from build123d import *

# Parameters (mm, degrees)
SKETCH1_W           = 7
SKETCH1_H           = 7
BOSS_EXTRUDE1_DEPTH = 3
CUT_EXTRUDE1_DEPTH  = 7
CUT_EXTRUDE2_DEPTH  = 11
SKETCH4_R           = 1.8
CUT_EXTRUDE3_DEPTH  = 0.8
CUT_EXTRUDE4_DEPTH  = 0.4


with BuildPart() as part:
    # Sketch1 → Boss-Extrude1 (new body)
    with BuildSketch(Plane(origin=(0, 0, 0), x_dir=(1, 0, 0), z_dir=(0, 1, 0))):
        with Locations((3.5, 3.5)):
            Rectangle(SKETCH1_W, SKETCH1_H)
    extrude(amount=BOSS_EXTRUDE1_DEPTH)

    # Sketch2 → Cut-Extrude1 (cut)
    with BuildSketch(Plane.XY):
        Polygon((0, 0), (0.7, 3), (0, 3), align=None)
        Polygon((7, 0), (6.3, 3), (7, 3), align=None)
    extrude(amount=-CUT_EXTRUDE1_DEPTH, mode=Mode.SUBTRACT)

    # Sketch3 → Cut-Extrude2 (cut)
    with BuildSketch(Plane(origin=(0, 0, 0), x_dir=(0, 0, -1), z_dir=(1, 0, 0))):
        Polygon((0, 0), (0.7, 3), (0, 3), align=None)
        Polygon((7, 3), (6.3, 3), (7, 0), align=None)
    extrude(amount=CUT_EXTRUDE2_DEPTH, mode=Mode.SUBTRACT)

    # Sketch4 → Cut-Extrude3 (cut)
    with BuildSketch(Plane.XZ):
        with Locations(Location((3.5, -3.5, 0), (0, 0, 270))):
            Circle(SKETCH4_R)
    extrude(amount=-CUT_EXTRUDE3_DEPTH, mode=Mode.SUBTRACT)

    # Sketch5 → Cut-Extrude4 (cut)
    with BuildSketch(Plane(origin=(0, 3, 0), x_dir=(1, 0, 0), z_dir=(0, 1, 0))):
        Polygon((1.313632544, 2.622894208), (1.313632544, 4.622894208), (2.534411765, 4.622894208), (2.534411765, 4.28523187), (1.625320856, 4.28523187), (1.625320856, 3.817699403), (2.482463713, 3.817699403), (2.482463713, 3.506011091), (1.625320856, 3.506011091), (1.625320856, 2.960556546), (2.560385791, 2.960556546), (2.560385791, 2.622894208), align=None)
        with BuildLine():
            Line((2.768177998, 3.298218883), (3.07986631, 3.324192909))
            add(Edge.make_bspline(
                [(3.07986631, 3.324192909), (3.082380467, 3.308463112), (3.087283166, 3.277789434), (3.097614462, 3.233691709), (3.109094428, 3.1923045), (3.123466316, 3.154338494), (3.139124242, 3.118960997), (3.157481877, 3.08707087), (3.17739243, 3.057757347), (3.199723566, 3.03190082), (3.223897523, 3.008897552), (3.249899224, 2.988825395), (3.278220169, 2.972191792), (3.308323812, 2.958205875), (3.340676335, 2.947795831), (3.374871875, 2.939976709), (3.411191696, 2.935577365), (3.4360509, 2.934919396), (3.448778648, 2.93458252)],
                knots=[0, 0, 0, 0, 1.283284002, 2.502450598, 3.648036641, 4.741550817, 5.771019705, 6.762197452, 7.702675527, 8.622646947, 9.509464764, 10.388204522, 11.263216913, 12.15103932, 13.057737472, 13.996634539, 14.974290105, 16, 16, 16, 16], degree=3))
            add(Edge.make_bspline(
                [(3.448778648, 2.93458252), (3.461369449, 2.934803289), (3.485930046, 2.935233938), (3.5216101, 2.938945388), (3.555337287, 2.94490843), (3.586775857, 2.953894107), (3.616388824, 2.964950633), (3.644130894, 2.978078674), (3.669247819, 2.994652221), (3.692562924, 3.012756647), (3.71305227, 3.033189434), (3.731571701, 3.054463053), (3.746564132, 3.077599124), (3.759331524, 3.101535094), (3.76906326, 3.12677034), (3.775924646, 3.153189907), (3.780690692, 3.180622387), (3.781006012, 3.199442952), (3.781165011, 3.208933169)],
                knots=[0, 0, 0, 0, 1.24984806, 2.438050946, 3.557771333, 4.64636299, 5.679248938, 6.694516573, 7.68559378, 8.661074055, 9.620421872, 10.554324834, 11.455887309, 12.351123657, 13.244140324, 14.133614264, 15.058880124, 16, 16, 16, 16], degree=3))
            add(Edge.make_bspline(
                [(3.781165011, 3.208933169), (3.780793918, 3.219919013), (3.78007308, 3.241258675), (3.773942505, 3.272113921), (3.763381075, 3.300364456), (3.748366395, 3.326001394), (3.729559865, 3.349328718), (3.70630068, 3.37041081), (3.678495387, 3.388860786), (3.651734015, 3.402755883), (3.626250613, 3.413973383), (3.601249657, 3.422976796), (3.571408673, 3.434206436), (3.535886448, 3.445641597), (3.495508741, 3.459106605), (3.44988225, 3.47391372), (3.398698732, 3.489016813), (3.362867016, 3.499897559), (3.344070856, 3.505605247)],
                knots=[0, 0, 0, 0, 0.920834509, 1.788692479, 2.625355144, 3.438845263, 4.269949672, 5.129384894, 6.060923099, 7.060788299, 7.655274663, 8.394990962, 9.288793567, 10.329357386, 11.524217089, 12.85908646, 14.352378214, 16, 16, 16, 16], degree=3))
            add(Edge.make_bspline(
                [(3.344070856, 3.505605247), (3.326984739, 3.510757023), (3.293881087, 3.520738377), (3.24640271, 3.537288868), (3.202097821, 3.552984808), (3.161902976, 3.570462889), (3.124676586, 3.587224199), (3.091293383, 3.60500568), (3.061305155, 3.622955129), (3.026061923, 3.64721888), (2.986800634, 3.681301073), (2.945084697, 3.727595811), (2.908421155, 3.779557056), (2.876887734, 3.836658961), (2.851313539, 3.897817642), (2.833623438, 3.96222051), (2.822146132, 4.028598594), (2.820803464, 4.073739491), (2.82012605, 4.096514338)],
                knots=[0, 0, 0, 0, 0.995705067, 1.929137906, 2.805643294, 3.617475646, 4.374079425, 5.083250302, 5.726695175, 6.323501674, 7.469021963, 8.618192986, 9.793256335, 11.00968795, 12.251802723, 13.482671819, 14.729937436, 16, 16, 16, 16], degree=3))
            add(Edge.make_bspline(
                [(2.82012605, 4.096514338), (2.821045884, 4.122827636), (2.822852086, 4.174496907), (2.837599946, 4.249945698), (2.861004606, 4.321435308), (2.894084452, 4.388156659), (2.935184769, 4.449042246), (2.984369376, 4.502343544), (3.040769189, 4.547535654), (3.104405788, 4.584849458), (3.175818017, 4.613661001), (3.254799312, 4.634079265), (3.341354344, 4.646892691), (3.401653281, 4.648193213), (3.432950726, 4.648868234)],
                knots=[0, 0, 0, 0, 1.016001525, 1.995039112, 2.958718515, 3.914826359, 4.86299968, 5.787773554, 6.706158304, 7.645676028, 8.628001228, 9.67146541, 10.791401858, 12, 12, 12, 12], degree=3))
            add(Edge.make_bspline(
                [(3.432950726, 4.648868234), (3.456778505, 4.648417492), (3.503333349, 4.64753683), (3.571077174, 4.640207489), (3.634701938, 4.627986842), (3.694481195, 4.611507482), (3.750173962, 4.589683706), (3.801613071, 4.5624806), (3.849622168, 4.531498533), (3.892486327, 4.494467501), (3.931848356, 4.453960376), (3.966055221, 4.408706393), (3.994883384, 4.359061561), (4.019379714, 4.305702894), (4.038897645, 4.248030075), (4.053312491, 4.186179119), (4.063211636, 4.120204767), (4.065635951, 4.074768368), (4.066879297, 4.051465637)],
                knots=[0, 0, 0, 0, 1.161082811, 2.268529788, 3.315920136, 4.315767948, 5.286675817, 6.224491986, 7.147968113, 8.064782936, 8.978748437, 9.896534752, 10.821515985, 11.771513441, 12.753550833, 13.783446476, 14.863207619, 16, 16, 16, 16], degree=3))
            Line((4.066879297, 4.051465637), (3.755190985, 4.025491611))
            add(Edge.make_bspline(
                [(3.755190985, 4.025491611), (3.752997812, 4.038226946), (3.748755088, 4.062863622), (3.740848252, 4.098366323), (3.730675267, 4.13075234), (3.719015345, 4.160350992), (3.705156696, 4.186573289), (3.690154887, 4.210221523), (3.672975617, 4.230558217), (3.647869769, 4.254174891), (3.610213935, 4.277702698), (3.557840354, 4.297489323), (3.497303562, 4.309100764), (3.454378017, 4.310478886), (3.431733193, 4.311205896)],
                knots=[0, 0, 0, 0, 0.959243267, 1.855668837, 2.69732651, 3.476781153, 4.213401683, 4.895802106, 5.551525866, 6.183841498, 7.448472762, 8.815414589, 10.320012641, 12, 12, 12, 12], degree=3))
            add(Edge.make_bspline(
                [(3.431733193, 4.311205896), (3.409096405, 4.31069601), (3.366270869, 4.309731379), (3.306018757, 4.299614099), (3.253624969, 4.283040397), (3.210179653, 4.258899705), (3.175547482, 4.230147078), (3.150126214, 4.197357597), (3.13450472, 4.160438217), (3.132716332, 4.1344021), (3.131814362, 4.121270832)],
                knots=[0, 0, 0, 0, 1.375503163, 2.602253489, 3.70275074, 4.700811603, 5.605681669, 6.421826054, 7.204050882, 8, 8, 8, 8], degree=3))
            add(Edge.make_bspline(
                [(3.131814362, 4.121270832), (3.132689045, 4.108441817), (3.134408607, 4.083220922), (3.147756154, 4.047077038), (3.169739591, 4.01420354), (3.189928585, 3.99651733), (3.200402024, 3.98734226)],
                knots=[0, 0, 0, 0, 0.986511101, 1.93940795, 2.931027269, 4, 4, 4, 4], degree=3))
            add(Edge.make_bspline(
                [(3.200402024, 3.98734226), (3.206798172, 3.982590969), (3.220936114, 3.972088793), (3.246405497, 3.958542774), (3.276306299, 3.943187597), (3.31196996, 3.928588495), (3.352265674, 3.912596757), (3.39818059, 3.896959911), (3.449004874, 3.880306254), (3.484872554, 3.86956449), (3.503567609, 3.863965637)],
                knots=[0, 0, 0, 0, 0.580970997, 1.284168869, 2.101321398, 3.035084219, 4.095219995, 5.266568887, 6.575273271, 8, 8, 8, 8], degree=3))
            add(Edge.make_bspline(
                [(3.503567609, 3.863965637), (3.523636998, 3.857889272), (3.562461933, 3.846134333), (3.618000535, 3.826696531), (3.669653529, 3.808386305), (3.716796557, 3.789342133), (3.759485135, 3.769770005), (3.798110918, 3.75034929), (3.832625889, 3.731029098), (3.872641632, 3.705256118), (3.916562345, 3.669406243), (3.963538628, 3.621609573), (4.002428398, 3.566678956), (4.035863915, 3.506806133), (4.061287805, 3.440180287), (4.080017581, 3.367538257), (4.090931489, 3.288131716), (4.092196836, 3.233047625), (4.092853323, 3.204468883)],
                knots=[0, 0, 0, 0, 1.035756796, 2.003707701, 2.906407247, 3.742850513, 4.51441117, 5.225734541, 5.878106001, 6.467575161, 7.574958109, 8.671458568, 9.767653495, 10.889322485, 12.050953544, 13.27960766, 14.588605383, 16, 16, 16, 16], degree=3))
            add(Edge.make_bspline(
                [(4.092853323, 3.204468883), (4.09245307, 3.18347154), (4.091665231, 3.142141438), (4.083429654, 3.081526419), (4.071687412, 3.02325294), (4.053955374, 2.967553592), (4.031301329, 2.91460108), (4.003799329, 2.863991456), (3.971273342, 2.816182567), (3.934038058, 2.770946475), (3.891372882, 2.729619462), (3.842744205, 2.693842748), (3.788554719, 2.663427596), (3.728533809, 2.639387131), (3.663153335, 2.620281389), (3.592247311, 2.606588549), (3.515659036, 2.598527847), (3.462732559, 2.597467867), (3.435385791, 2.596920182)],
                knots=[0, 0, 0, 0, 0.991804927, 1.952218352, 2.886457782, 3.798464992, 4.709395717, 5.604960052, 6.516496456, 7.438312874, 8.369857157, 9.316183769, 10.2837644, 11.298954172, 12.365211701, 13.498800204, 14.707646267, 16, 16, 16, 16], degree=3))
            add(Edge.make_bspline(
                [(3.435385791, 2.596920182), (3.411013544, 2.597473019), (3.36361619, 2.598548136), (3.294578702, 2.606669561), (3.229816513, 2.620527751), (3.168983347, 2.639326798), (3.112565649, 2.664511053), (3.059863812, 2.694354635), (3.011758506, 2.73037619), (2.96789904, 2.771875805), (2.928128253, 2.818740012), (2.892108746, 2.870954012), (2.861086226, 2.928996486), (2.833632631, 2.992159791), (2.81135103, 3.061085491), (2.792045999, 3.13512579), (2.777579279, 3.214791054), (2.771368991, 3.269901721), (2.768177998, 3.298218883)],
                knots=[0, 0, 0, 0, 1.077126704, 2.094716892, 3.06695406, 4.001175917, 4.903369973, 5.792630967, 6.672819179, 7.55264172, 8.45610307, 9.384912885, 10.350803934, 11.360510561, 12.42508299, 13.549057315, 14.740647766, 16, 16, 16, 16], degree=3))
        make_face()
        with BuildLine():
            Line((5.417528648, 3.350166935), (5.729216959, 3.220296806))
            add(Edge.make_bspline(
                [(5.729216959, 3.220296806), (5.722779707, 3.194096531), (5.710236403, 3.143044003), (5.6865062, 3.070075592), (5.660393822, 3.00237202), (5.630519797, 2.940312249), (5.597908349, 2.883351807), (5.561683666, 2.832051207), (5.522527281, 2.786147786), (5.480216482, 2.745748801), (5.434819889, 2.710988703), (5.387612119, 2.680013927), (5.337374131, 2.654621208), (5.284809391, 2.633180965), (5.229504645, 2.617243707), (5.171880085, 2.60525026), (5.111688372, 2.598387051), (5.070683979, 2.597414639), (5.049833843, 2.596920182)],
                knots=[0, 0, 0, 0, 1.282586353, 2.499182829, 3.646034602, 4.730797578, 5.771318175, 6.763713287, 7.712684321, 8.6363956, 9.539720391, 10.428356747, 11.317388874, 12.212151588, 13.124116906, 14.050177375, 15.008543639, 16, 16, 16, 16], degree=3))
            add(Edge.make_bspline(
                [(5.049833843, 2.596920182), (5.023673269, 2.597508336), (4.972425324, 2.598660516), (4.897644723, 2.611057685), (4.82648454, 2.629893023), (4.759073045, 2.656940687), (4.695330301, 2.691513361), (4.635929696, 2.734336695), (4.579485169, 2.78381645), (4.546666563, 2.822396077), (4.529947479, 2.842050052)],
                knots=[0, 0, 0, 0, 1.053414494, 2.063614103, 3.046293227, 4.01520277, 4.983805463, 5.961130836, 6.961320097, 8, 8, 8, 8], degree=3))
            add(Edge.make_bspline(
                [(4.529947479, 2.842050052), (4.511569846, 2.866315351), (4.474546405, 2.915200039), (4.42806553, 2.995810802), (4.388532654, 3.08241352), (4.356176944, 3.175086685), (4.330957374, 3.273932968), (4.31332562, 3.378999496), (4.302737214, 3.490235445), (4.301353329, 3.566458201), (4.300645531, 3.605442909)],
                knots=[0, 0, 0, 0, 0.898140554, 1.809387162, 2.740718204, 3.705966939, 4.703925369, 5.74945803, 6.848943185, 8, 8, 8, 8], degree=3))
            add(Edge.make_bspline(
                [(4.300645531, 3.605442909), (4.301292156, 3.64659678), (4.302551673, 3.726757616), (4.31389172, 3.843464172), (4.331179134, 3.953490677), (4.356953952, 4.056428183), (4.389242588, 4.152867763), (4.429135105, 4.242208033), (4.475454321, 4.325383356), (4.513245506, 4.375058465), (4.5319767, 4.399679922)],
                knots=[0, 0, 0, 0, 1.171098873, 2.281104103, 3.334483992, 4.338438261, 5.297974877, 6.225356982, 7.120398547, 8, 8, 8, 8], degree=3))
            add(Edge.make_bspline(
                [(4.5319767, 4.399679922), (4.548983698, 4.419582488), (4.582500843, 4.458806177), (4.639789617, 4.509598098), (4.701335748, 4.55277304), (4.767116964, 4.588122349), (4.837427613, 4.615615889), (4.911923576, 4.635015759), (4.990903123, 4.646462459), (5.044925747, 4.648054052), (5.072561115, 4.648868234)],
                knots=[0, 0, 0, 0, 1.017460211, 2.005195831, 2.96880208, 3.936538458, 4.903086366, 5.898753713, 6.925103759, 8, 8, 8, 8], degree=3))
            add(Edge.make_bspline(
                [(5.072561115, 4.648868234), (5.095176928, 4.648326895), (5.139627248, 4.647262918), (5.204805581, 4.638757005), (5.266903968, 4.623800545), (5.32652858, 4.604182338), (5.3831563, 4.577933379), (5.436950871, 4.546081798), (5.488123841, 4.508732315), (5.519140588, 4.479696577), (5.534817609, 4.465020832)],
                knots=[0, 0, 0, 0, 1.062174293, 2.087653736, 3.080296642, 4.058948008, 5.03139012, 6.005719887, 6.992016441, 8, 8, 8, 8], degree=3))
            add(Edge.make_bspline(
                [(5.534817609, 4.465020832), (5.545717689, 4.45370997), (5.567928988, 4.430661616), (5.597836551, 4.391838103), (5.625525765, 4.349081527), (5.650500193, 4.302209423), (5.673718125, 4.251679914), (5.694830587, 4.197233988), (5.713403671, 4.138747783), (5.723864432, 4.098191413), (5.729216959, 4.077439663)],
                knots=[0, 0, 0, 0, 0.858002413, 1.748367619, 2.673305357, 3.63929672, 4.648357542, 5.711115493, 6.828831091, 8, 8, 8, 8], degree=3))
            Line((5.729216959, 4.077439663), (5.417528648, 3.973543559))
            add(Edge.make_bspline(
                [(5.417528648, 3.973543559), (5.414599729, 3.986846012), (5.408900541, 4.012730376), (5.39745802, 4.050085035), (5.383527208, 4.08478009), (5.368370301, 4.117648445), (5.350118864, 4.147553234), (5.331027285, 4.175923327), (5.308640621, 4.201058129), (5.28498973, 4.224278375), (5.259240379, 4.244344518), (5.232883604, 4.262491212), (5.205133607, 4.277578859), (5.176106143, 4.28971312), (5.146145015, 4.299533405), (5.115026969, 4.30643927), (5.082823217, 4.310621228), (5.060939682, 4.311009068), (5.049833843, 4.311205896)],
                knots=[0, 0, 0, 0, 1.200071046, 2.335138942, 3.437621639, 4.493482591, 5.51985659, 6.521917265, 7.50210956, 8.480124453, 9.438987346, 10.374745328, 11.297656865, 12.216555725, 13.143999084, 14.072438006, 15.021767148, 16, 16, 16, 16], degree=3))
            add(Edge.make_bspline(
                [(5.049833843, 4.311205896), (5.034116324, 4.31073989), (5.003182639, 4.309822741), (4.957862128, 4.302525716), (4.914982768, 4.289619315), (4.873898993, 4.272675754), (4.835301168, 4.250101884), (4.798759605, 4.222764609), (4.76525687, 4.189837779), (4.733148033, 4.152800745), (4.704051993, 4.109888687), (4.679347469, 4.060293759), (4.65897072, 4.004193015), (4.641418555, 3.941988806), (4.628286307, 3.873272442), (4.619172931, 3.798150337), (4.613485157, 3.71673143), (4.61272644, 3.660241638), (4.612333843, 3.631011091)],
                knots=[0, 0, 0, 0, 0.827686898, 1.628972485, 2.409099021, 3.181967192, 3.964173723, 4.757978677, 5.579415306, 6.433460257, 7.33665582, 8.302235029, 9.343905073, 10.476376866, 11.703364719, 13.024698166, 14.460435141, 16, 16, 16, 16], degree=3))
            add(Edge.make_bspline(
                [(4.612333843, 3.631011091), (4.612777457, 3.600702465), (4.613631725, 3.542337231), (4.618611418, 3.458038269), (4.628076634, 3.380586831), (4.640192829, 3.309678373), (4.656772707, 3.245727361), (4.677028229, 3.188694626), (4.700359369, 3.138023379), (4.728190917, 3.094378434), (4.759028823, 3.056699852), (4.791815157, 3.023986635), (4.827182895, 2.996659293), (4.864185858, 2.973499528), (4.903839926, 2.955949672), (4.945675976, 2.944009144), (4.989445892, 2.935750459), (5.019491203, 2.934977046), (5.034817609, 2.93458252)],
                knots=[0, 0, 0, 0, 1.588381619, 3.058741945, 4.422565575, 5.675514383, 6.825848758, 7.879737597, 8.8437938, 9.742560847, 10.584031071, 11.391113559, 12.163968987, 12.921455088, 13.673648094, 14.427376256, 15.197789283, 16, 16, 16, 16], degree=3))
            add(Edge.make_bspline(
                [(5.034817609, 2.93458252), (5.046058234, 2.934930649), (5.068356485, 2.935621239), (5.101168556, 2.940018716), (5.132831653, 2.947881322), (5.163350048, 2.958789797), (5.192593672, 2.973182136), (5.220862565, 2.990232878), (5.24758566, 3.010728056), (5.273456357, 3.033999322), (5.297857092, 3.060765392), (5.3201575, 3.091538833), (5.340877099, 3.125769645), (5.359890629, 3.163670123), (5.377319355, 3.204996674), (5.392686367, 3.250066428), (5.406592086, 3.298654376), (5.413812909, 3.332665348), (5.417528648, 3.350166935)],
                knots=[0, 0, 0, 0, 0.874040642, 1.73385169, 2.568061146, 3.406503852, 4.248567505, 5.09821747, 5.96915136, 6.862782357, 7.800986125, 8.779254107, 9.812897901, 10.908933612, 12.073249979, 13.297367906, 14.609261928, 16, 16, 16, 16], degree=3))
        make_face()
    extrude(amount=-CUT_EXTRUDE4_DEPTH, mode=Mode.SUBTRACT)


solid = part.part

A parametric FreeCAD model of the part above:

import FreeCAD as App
import Part
import Sketcher
from FreeCAD import Vector

doc = App.newDocument("Part")
body = doc.addObject("PartDesign::Body", "Body")

sketch1 = body.newObject("Sketcher::SketchObject", "Sketch")
sketch1.AttachmentSupport = (doc.getObject("XZ_Plane"), [""])
sketch1.MapMode = "FlatFace"
sketch1.addGeometry([
    Part.LineSegment(Vector(0, -7, 0), Vector(0, 0, 0)),
    Part.LineSegment(Vector(0, 0, 0), Vector(7, 0, 0)),
    Part.LineSegment(Vector(7, 0, 0), Vector(7, -7, 0)),
    Part.LineSegment(Vector(7, -7, 0), Vector(0, -7, 0)),
], False)
sketch1.addConstraint([
    Sketcher.Constraint("Coincident", 0, 2, 1, 1),
    Sketcher.Constraint("Coincident", 1, 2, 2, 1),
    Sketcher.Constraint("Coincident", 2, 2, 3, 1),
    Sketcher.Constraint("Coincident", 3, 2, 0, 1),
    Sketcher.Constraint("Vertical", 0),
    Sketcher.Constraint("Horizontal", 1),
    Sketcher.Constraint("Vertical", 2),
    Sketcher.Constraint("Horizontal", 3),
    Sketcher.Constraint("Coincident", 0, 2, -1, 1),
    Sketcher.Constraint("Equal", 3, 0),
    Sketcher.Constraint("DistanceX", 1, 1, 1, 2, 7.0),
])
pad1 = body.newObject("PartDesign::Pad", "Pad")
pad1.Profile = sketch1
pad1.Length = 3
pad1.Reversed = True

sketch2 = body.newObject("Sketcher::SketchObject", "Sketch001")
sketch2.AttachmentSupport = (doc.getObject("XY_Plane"), [""])
sketch2.MapMode = "FlatFace"
sketch2.addGeometry([
    Part.LineSegment(Vector(0, 0, 0), Vector(0.7, 3, 0)),
    Part.LineSegment(Vector(0.7, 3, 0), Vector(0, 3, 0)),
    Part.LineSegment(Vector(0, 3, 0), Vector(0, 0, 0)),
    Part.LineSegment(Vector(6.3, 3, 0), Vector(7, 0, 0)),
    Part.LineSegment(Vector(7, 0, 0), Vector(7, 3, 0)),
    Part.LineSegment(Vector(7, 3, 0), Vector(6.3, 3, 0)),
], False)
sketch2.addConstraint([
    Sketcher.Constraint("Coincident", 0, 2, 1, 1),
    Sketcher.Constraint("Coincident", 1, 2, 2, 1),
    Sketcher.Constraint("Coincident", 2, 2, 0, 1),
    Sketcher.Constraint("Coincident", 3, 2, 4, 1),
    Sketcher.Constraint("Coincident", 4, 2, 5, 1),
    Sketcher.Constraint("Coincident", 5, 2, 3, 1),
    Sketcher.Constraint("Horizontal", 1),
    Sketcher.Constraint("Vertical", 2),
    Sketcher.Constraint("Vertical", 4),
    Sketcher.Constraint("Horizontal", 5),
    Sketcher.Constraint("Coincident", 2, 2, -1, 1),
    Sketcher.Constraint("PointOnObject", 3, 2, -1),
    Sketcher.Constraint("Horizontal", 1, 2, 4, 2),
    Sketcher.Constraint("Equal", 1, 5),
    Sketcher.Constraint("DistanceY", 2, 2, 2, 1, 3.0),
    Sketcher.Constraint("DistanceX", 1, 2, 1, 1, 0.7),
    Sketcher.Constraint("DistanceX", -1, 1, 3, 2, 7.0),
])
pocket1 = body.newObject("PartDesign::Pocket", "Pocket")
pocket1.Profile = sketch2
pocket1.Length = 7

sketch3 = body.newObject("Sketcher::SketchObject", "Sketch002")
sketch3.AttachmentSupport = (doc.getObject("YZ_Plane"), [""])
sketch3.MapMode = "FlatFace"
sketch3.addGeometry([
    Part.LineSegment(Vector(0, 0, 0), Vector(3, -0.7, 0)),
    Part.LineSegment(Vector(3, -0.7, 0), Vector(3, 0, 0)),
    Part.LineSegment(Vector(3, 0, 0), Vector(0, 0, 0)),
    Part.LineSegment(Vector(3, -7, 0), Vector(3, -6.3, 0)),
    Part.LineSegment(Vector(3, -6.3, 0), Vector(0, -7, 0)),
    Part.LineSegment(Vector(0, -7, 0), Vector(3, -7, 0)),
], False)
sketch3.addConstraint([
    Sketcher.Constraint("Coincident", 0, 2, 1, 1),
    Sketcher.Constraint("Coincident", 1, 2, 2, 1),
    Sketcher.Constraint("Coincident", 2, 2, 0, 1),
    Sketcher.Constraint("Coincident", 3, 2, 4, 1),
    Sketcher.Constraint("Coincident", 4, 2, 5, 1),
    Sketcher.Constraint("Coincident", 5, 2, 3, 1),
    Sketcher.Constraint("Vertical", 1),
    Sketcher.Constraint("Horizontal", 2),
    Sketcher.Constraint("Vertical", 3),
    Sketcher.Constraint("Horizontal", 5),
    Sketcher.Constraint("Coincident", 2, 2, -1, 1),
    Sketcher.Constraint("PointOnObject", 4, 2, -2),
    Sketcher.Constraint("Vertical", 1, 2, 3, 2),
    Sketcher.Constraint("Equal", 1, 3),
    Sketcher.Constraint("DistanceX", 2, 2, 2, 1, 3.0),
    Sketcher.Constraint("DistanceY", 1, 1, 1, 2, 0.7),
    Sketcher.Constraint("DistanceY", 4, 2, -1, 1, 7.0),
])
pocket2 = body.newObject("PartDesign::Pocket", "Pocket001")
pocket2.Profile = sketch3
pocket2.Length = 11
pocket2.Reversed = True

sketch4 = body.newObject("Sketcher::SketchObject", "Sketch003")
sketch4.AttachmentSupport = (doc.getObject("XZ_Plane"), [""])
sketch4.MapMode = "FlatFace"
sketch4.addGeometry(Part.Circle(Vector(3.5, -3.5, 0), Vector(0, 0, 1), 1.8), False)
sketch4.addConstraint([
    Sketcher.Constraint("Diameter", 0, 3.6),
    Sketcher.Constraint("DistanceX", -1, 1, 0, 3, 3.5),
    Sketcher.Constraint("DistanceY", 0, 3, -1, 1, 3.5),
])
pocket3 = body.newObject("PartDesign::Pocket", "Pocket002")
pocket3.Profile = sketch4
pocket3.Length = 0.8

sketch5 = body.newObject("Sketcher::SketchObject", "Sketch004")
sketch5.AttachmentSupport = (doc.getObject("XZ_Plane"), [""])
sketch5.MapMode = "FlatFace"
sketch5.AttachmentOffset = App.Placement(Vector(0, 0, -3), App.Rotation())
sketch5.addGeometry([
    Part.LineSegment(Vector(1.313633, -4.622894, 0), Vector(1.313633, -2.622894, 0)),
    Part.LineSegment(Vector(1.313633, -2.622894, 0), Vector(2.560386, -2.622894, 0)),
    Part.LineSegment(Vector(2.560386, -2.622894, 0), Vector(2.560386, -2.960557, 0)),
    Part.LineSegment(Vector(2.560386, -2.960557, 0), Vector(1.625321, -2.960557, 0)),
    Part.LineSegment(Vector(1.625321, -2.960557, 0), Vector(1.625321, -3.506011, 0)),
    Part.LineSegment(Vector(1.625321, -3.506011, 0), Vector(2.482464, -3.506011, 0)),
    Part.LineSegment(Vector(2.482464, -3.506011, 0), Vector(2.482464, -3.817699, 0)),
    Part.LineSegment(Vector(2.482464, -3.817699, 0), Vector(1.625321, -3.817699, 0)),
    Part.LineSegment(Vector(1.625321, -3.817699, 0), Vector(1.625321, -4.285232, 0)),
    Part.LineSegment(Vector(1.625321, -4.285232, 0), Vector(2.534412, -4.285232, 0)),
    Part.LineSegment(Vector(2.534412, -4.285232, 0), Vector(2.534412, -4.622894, 0)),
    Part.LineSegment(Vector(2.534412, -4.622894, 0), Vector(1.313633, -4.622894, 0)),
    Part.LineSegment(Vector(3.079866, -3.324193, 0), Vector(2.768178, -3.298219, 0)),
    Part.BSplineCurve([Vector(3.435386, -2.59692, 0), Vector(3.411014, -2.597473, 0), Vector(3.363616, -2.598548, 0), Vector(3.294579, -2.60667, 0), Vector(3.229817, -2.620528, 0), Vector(3.168983, -2.639327, 0), Vector(3.112566, -2.664511, 0), Vector(3.059864, -2.694355, 0), Vector(3.011759, -2.730376, 0), Vector(2.967899, -2.771876, 0), Vector(2.928128, -2.81874, 0), Vector(2.892109, -2.870954, 0), Vector(2.861086, -2.928996, 0), Vector(2.833633, -2.99216, 0), Vector(2.811351, -3.061085, 0), Vector(2.792046, -3.135126, 0), Vector(2.777579, -3.214791, 0), Vector(2.771369, -3.269902, 0), Vector(2.768178, -3.298219, 0)], [4, 1, 1, 1, 1, 1, 1, 1, 1, 1, 1, 1, 1, 1, 1, 1, 4], [0, 1.077126704, 2.094716892, 3.06695406, 4.001175917, 4.903369973, 5.792630967, 6.672819179, 7.55264172, 8.45610307, 9.384912885, 10.350803934, 11.360510561, 12.42508299, 13.549057315, 14.740647766, 16], False, 3, [1, 1, 1, 1, 1, 1, 1, 1, 1, 1, 1, 1, 1, 1, 1, 1, 1, 1, 1], False),
    Part.BSplineCurve([Vector(4.092853, -3.204469, 0), Vector(4.092453, -3.183472, 0), Vector(4.091665, -3.142141, 0), Vector(4.08343, -3.081526, 0), Vector(4.071687, -3.023253, 0), Vector(4.053955, -2.967554, 0), Vector(4.031301, -2.914601, 0), Vector(4.003799, -2.863991, 0), Vector(3.971273, -2.816183, 0), Vector(3.934038, -2.770946, 0), Vector(3.891373, -2.729619, 0), Vector(3.842744, -2.693843, 0), Vector(3.788555, -2.663428, 0), Vector(3.728534, -2.639387, 0), Vector(3.663153, -2.620281, 0), Vector(3.592247, -2.606589, 0), Vector(3.515659, -2.598528, 0), Vector(3.462733, -2.597468, 0), Vector(3.435386, -2.59692, 0)], [4, 1, 1, 1, 1, 1, 1, 1, 1, 1, 1, 1, 1, 1, 1, 1, 4], [0, 0.991804927, 1.952218352, 2.886457782, 3.798464992, 4.709395717, 5.604960052, 6.516496456, 7.438312874, 8.369857157, 9.316183769, 10.2837644, 11.298954172, 12.365211701, 13.498800204, 14.707646267, 16], False, 3, [1, 1, 1, 1, 1, 1, 1, 1, 1, 1, 1, 1, 1, 1, 1, 1, 1, 1, 1], False),
    Part.BSplineCurve([Vector(3.503568, -3.863966, 0), Vector(3.523637, -3.857889, 0), Vector(3.562462, -3.846134, 0), Vector(3.618001, -3.826697, 0), Vector(3.669654, -3.808386, 0), Vector(3.716797, -3.789342, 0), Vector(3.759485, -3.76977, 0), Vector(3.798111, -3.750349, 0), Vector(3.832626, -3.731029, 0), Vector(3.872642, -3.705256, 0), Vector(3.916562, -3.669406, 0), Vector(3.963539, -3.62161, 0), Vector(4.002428, -3.566679, 0), Vector(4.035864, -3.506806, 0), Vector(4.061288, -3.44018, 0), Vector(4.080018, -3.367538, 0), Vector(4.090931, -3.288132, 0), Vector(4.092197, -3.233048, 0), Vector(4.092853, -3.204469, 0)], [4, 1, 1, 1, 1, 1, 1, 1, 1, 1, 1, 1, 1, 1, 1, 1, 4], [0, 1.035756796, 2.003707701, 2.906407247, 3.742850513, 4.51441117, 5.225734541, 5.878106001, 6.467575161, 7.574958109, 8.671458568, 9.767653495, 10.889322485, 12.050953544, 13.27960766, 14.588605383, 16], False, 3, [1, 1, 1, 1, 1, 1, 1, 1, 1, 1, 1, 1, 1, 1, 1, 1, 1, 1, 1], False),
    Part.BSplineCurve([Vector(3.200402, -3.987342, 0), Vector(3.206798, -3.982591, 0), Vector(3.220936, -3.972089, 0), Vector(3.246405, -3.958543, 0), Vector(3.276306, -3.943188, 0), Vector(3.31197, -3.928588, 0), Vector(3.352266, -3.912597, 0), Vector(3.398181, -3.89696, 0), Vector(3.449005, -3.880306, 0), Vector(3.484873, -3.869564, 0), Vector(3.503568, -3.863966, 0)], [4, 1, 1, 1, 1, 1, 1, 1, 4], [0, 0.580970997, 1.284168869, 2.101321398, 3.035084219, 4.095219995, 5.266568887, 6.575273271, 8], False, 3, [1, 1, 1, 1, 1, 1, 1, 1, 1, 1, 1], False),
    Part.BSplineCurve([Vector(3.131814, -4.121271, 0), Vector(3.132689, -4.108442, 0), Vector(3.134409, -4.083221, 0), Vector(3.147756, -4.047077, 0), Vector(3.16974, -4.014204, 0), Vector(3.189929, -3.996517, 0), Vector(3.200402, -3.987342, 0)], [4, 1, 1, 1, 4], [0, 0.986511101, 1.93940795, 2.931027269, 4], False, 3, [1, 1, 1, 1, 1, 1, 1], False),
    Part.BSplineCurve([Vector(3.431733, -4.311206, 0), Vector(3.409096, -4.310696, 0), Vector(3.366271, -4.309731, 0), Vector(3.306019, -4.299614, 0), Vector(3.253625, -4.28304, 0), Vector(3.21018, -4.2589, 0), Vector(3.175547, -4.230147, 0), Vector(3.150126, -4.197358, 0), Vector(3.134505, -4.160438, 0), Vector(3.132716, -4.134402, 0), Vector(3.131814, -4.121271, 0)], [4, 1, 1, 1, 1, 1, 1, 1, 4], [0, 1.375503163, 2.602253489, 3.70275074, 4.700811603, 5.605681669, 6.421826054, 7.204050882, 8], False, 3, [1, 1, 1, 1, 1, 1, 1, 1, 1, 1, 1], False),
    Part.BSplineCurve([Vector(3.755191, -4.025492, 0), Vector(3.752998, -4.038227, 0), Vector(3.748755, -4.062864, 0), Vector(3.740848, -4.098366, 0), Vector(3.730675, -4.130752, 0), Vector(3.719015, -4.160351, 0), Vector(3.705157, -4.186573, 0), Vector(3.690155, -4.210222, 0), Vector(3.672976, -4.230558, 0), Vector(3.64787, -4.254175, 0), Vector(3.610214, -4.277703, 0), Vector(3.55784, -4.297489, 0), Vector(3.497304, -4.309101, 0), Vector(3.454378, -4.310479, 0), Vector(3.431733, -4.311206, 0)], [4, 1, 1, 1, 1, 1, 1, 1, 1, 1, 1, 1, 4], [0, 0.959243267, 1.855668837, 2.69732651, 3.476781153, 4.213401683, 4.895802106, 5.551525866, 6.183841498, 7.448472762, 8.815414589, 10.320012641, 12], False, 3, [1, 1, 1, 1, 1, 1, 1, 1, 1, 1, 1, 1, 1, 1, 1], False),
    Part.LineSegment(Vector(3.755191, -4.025492, 0), Vector(4.066879, -4.051466, 0)),
    Part.BSplineCurve([Vector(3.432951, -4.648868, 0), Vector(3.456779, -4.648417, 0), Vector(3.503333, -4.647537, 0), Vector(3.571077, -4.640207, 0), Vector(3.634702, -4.627987, 0), Vector(3.694481, -4.611507, 0), Vector(3.750174, -4.589684, 0), Vector(3.801613, -4.562481, 0), Vector(3.849622, -4.531499, 0), Vector(3.892486, -4.494468, 0), Vector(3.931848, -4.45396, 0), Vector(3.966055, -4.408706, 0), Vector(3.994883, -4.359062, 0), Vector(4.01938, -4.305703, 0), Vector(4.038898, -4.24803, 0), Vector(4.053312, -4.186179, 0), Vector(4.063212, -4.120205, 0), Vector(4.065636, -4.074768, 0), Vector(4.066879, -4.051466, 0)], [4, 1, 1, 1, 1, 1, 1, 1, 1, 1, 1, 1, 1, 1, 1, 1, 4], [0, 1.161082811, 2.268529788, 3.315920136, 4.315767948, 5.286675817, 6.224491986, 7.147968113, 8.064782936, 8.978748437, 9.896534752, 10.821515985, 11.771513441, 12.753550833, 13.783446476, 14.863207619, 16], False, 3, [1, 1, 1, 1, 1, 1, 1, 1, 1, 1, 1, 1, 1, 1, 1, 1, 1, 1, 1], False),
    Part.BSplineCurve([Vector(2.820126, -4.096514, 0), Vector(2.821046, -4.122828, 0), Vector(2.822852, -4.174497, 0), Vector(2.8376, -4.249946, 0), Vector(2.861005, -4.321435, 0), Vector(2.894084, -4.388157, 0), Vector(2.935185, -4.449042, 0), Vector(2.984369, -4.502344, 0), Vector(3.040769, -4.547536, 0), Vector(3.104406, -4.584849, 0), Vector(3.175818, -4.613661, 0), Vector(3.254799, -4.634079, 0), Vector(3.341354, -4.646893, 0), Vector(3.401653, -4.648193, 0), Vector(3.432951, -4.648868, 0)], [4, 1, 1, 1, 1, 1, 1, 1, 1, 1, 1, 1, 4], [0, 1.016001525, 1.995039112, 2.958718515, 3.914826359, 4.86299968, 5.787773554, 6.706158304, 7.645676028, 8.628001228, 9.67146541, 10.791401858, 12], False, 3, [1, 1, 1, 1, 1, 1, 1, 1, 1, 1, 1, 1, 1, 1, 1], False),
    Part.BSplineCurve([Vector(3.344071, -3.505605, 0), Vector(3.326985, -3.510757, 0), Vector(3.293881, -3.520738, 0), Vector(3.246403, -3.537289, 0), Vector(3.202098, -3.552985, 0), Vector(3.161903, -3.570463, 0), Vector(3.124677, -3.587224, 0), Vector(3.091293, -3.605006, 0), Vector(3.061305, -3.622955, 0), Vector(3.026062, -3.647219, 0), Vector(2.986801, -3.681301, 0), Vector(2.945085, -3.727596, 0), Vector(2.908421, -3.779557, 0), Vector(2.876888, -3.836659, 0), Vector(2.851314, -3.897818, 0), Vector(2.833623, -3.962221, 0), Vector(2.822146, -4.028599, 0), Vector(2.820803, -4.073739, 0), Vector(2.820126, -4.096514, 0)], [4, 1, 1, 1, 1, 1, 1, 1, 1, 1, 1, 1, 1, 1, 1, 1, 4], [0, 0.995705067, 1.929137906, 2.805643294, 3.617475646, 4.374079425, 5.083250302, 5.726695175, 6.323501674, 7.469021963, 8.618192986, 9.793256335, 11.00968795, 12.251802723, 13.482671819, 14.729937436, 16], False, 3, [1, 1, 1, 1, 1, 1, 1, 1, 1, 1, 1, 1, 1, 1, 1, 1, 1, 1, 1], False),
    Part.BSplineCurve([Vector(3.781165, -3.208933, 0), Vector(3.780794, -3.219919, 0), Vector(3.780073, -3.241259, 0), Vector(3.773943, -3.272114, 0), Vector(3.763381, -3.300364, 0), Vector(3.748366, -3.326001, 0), Vector(3.72956, -3.349329, 0), Vector(3.706301, -3.370411, 0), Vector(3.678495, -3.388861, 0), Vector(3.651734, -3.402756, 0), Vector(3.626251, -3.413973, 0), Vector(3.60125, -3.422977, 0), Vector(3.571409, -3.434206, 0), Vector(3.535886, -3.445642, 0), Vector(3.495509, -3.459107, 0), Vector(3.449882, -3.473914, 0), Vector(3.398699, -3.489017, 0), Vector(3.362867, -3.499898, 0), Vector(3.344071, -3.505605, 0)], [4, 1, 1, 1, 1, 1, 1, 1, 1, 1, 1, 1, 1, 1, 1, 1, 4], [0, 0.920834509, 1.788692479, 2.625355144, 3.438845263, 4.269949672, 5.129384894, 6.060923099, 7.060788299, 7.655274663, 8.394990962, 9.288793567, 10.329357386, 11.524217089, 12.85908646, 14.352378214, 16], False, 3, [1, 1, 1, 1, 1, 1, 1, 1, 1, 1, 1, 1, 1, 1, 1, 1, 1, 1, 1], False),
    Part.BSplineCurve([Vector(3.448779, -2.934583, 0), Vector(3.461369, -2.934803, 0), Vector(3.48593, -2.935234, 0), Vector(3.52161, -2.938945, 0), Vector(3.555337, -2.944908, 0), Vector(3.586776, -2.953894, 0), Vector(3.616389, -2.964951, 0), Vector(3.644131, -2.978079, 0), Vector(3.669248, -2.994652, 0), Vector(3.692563, -3.012757, 0), Vector(3.713052, -3.033189, 0), Vector(3.731572, -3.054463, 0), Vector(3.746564, -3.077599, 0), Vector(3.759332, -3.101535, 0), Vector(3.769063, -3.12677, 0), Vector(3.775925, -3.15319, 0), Vector(3.780691, -3.180622, 0), Vector(3.781006, -3.199443, 0), Vector(3.781165, -3.208933, 0)], [4, 1, 1, 1, 1, 1, 1, 1, 1, 1, 1, 1, 1, 1, 1, 1, 4], [0, 1.24984806, 2.438050946, 3.557771333, 4.64636299, 5.679248938, 6.694516573, 7.68559378, 8.661074055, 9.620421872, 10.554324834, 11.455887309, 12.351123657, 13.244140324, 14.133614264, 15.058880124, 16], False, 3, [1, 1, 1, 1, 1, 1, 1, 1, 1, 1, 1, 1, 1, 1, 1, 1, 1, 1, 1], False),
    Part.BSplineCurve([Vector(3.079866, -3.324193, 0), Vector(3.08238, -3.308463, 0), Vector(3.087283, -3.277789, 0), Vector(3.097614, -3.233692, 0), Vector(3.109094, -3.192305, 0), Vector(3.123466, -3.154338, 0), Vector(3.139124, -3.118961, 0), Vector(3.157482, -3.087071, 0), Vector(3.177392, -3.057757, 0), Vector(3.199724, -3.031901, 0), Vector(3.223898, -3.008898, 0), Vector(3.249899, -2.988825, 0), Vector(3.27822, -2.972192, 0), Vector(3.308324, -2.958206, 0), Vector(3.340676, -2.947796, 0), Vector(3.374872, -2.939977, 0), Vector(3.411192, -2.935577, 0), Vector(3.436051, -2.934919, 0), Vector(3.448779, -2.934583, 0)], [4, 1, 1, 1, 1, 1, 1, 1, 1, 1, 1, 1, 1, 1, 1, 1, 4], [0, 1.283284002, 2.502450598, 3.648036641, 4.741550817, 5.771019705, 6.762197452, 7.702675527, 8.622646947, 9.509464764, 10.388204522, 11.263216913, 12.15103932, 13.057737472, 13.996634539, 14.974290105, 16], False, 3, [1, 1, 1, 1, 1, 1, 1, 1, 1, 1, 1, 1, 1, 1, 1, 1, 1, 1, 1], False),
    Part.LineSegment(Vector(5.729217, -3.220297, 0), Vector(5.417529, -3.350167, 0)),
    Part.BSplineCurve([Vector(5.034818, -2.934583, 0), Vector(5.046058, -2.934931, 0), Vector(5.068356, -2.935621, 0), Vector(5.101169, -2.940019, 0), Vector(5.132832, -2.947881, 0), Vector(5.16335, -2.95879, 0), Vector(5.192594, -2.973182, 0), Vector(5.220863, -2.990233, 0), Vector(5.247586, -3.010728, 0), Vector(5.273456, -3.033999, 0), Vector(5.297857, -3.060765, 0), Vector(5.320157, -3.091539, 0), Vector(5.340877, -3.12577, 0), Vector(5.359891, -3.16367, 0), Vector(5.377319, -3.204997, 0), Vector(5.392686, -3.250066, 0), Vector(5.406592, -3.298654, 0), Vector(5.413813, -3.332665, 0), Vector(5.417529, -3.350167, 0)], [4, 1, 1, 1, 1, 1, 1, 1, 1, 1, 1, 1, 1, 1, 1, 1, 4], [0, 0.874040642, 1.73385169, 2.568061146, 3.406503852, 4.248567505, 5.09821747, 5.96915136, 6.862782357, 7.800986125, 8.779254107, 9.812897901, 10.908933612, 12.073249979, 13.297367906, 14.609261928, 16], False, 3, [1, 1, 1, 1, 1, 1, 1, 1, 1, 1, 1, 1, 1, 1, 1, 1, 1, 1, 1], False),
    Part.BSplineCurve([Vector(4.612334, -3.631011, 0), Vector(4.612777, -3.600702, 0), Vector(4.613632, -3.542337, 0), Vector(4.618611, -3.458038, 0), Vector(4.628077, -3.380587, 0), Vector(4.640193, -3.309678, 0), Vector(4.656773, -3.245727, 0), Vector(4.677028, -3.188695, 0), Vector(4.700359, -3.138023, 0), Vector(4.728191, -3.094378, 0), Vector(4.759029, -3.0567, 0), Vector(4.791815, -3.023987, 0), Vector(4.827183, -2.996659, 0), Vector(4.864186, -2.9735, 0), Vector(4.90384, -2.95595, 0), Vector(4.945676, -2.944009, 0), Vector(4.989446, -2.93575, 0), Vector(5.019491, -2.934977, 0), Vector(5.034818, -2.934583, 0)], [4, 1, 1, 1, 1, 1, 1, 1, 1, 1, 1, 1, 1, 1, 1, 1, 4], [0, 1.588381619, 3.058741945, 4.422565575, 5.675514383, 6.825848758, 7.879737597, 8.8437938, 9.742560847, 10.584031071, 11.391113559, 12.163968987, 12.921455088, 13.673648094, 14.427376256, 15.197789283, 16], False, 3, [1, 1, 1, 1, 1, 1, 1, 1, 1, 1, 1, 1, 1, 1, 1, 1, 1, 1, 1], False),
    Part.BSplineCurve([Vector(5.049834, -4.311206, 0), Vector(5.034116, -4.31074, 0), Vector(5.003183, -4.309823, 0), Vector(4.957862, -4.302526, 0), Vector(4.914983, -4.289619, 0), Vector(4.873899, -4.272676, 0), Vector(4.835301, -4.250102, 0), Vector(4.79876, -4.222765, 0), Vector(4.765257, -4.189838, 0), Vector(4.733148, -4.152801, 0), Vector(4.704052, -4.109889, 0), Vector(4.679347, -4.060294, 0), Vector(4.658971, -4.004193, 0), Vector(4.641419, -3.941989, 0), Vector(4.628286, -3.873272, 0), Vector(4.619173, -3.79815, 0), Vector(4.613485, -3.716731, 0), Vector(4.612726, -3.660242, 0), Vector(4.612334, -3.631011, 0)], [4, 1, 1, 1, 1, 1, 1, 1, 1, 1, 1, 1, 1, 1, 1, 1, 4], [0, 0.827686898, 1.628972485, 2.409099021, 3.181967192, 3.964173723, 4.757978677, 5.579415306, 6.433460257, 7.33665582, 8.302235029, 9.343905073, 10.476376866, 11.703364719, 13.024698166, 14.460435141, 16], False, 3, [1, 1, 1, 1, 1, 1, 1, 1, 1, 1, 1, 1, 1, 1, 1, 1, 1, 1, 1], False),
    Part.BSplineCurve([Vector(5.417529, -3.973544, 0), Vector(5.4146, -3.986846, 0), Vector(5.408901, -4.01273, 0), Vector(5.397458, -4.050085, 0), Vector(5.383527, -4.08478, 0), Vector(5.36837, -4.117648, 0), Vector(5.350119, -4.147553, 0), Vector(5.331027, -4.175923, 0), Vector(5.308641, -4.201058, 0), Vector(5.28499, -4.224278, 0), Vector(5.25924, -4.244345, 0), Vector(5.232884, -4.262491, 0), Vector(5.205134, -4.277579, 0), Vector(5.176106, -4.289713, 0), Vector(5.146145, -4.299533, 0), Vector(5.115027, -4.306439, 0), Vector(5.082823, -4.310621, 0), Vector(5.06094, -4.311009, 0), Vector(5.049834, -4.311206, 0)], [4, 1, 1, 1, 1, 1, 1, 1, 1, 1, 1, 1, 1, 1, 1, 1, 4], [0, 1.200071046, 2.335138942, 3.437621639, 4.493482591, 5.51985659, 6.521917265, 7.50210956, 8.480124453, 9.438987346, 10.374745328, 11.297656865, 12.216555725, 13.143999084, 14.072438006, 15.021767148, 16], False, 3, [1, 1, 1, 1, 1, 1, 1, 1, 1, 1, 1, 1, 1, 1, 1, 1, 1, 1, 1], False),
    Part.LineSegment(Vector(5.417529, -3.973544, 0), Vector(5.729217, -4.07744, 0)),
    Part.BSplineCurve([Vector(5.534818, -4.465021, 0), Vector(5.545718, -4.45371, 0), Vector(5.567929, -4.430662, 0), Vector(5.597837, -4.391838, 0), Vector(5.625526, -4.349082, 0), Vector(5.6505, -4.302209, 0), Vector(5.673718, -4.25168, 0), Vector(5.694831, -4.197234, 0), Vector(5.713404, -4.138748, 0), Vector(5.723864, -4.098191, 0), Vector(5.729217, -4.07744, 0)], [4, 1, 1, 1, 1, 1, 1, 1, 4], [0, 0.858002413, 1.748367619, 2.673305357, 3.63929672, 4.648357542, 5.711115493, 6.828831091, 8], False, 3, [1, 1, 1, 1, 1, 1, 1, 1, 1, 1, 1], False),
    Part.BSplineCurve([Vector(5.072561, -4.648868, 0), Vector(5.095177, -4.648327, 0), Vector(5.139627, -4.647263, 0), Vector(5.204806, -4.638757, 0), Vector(5.266904, -4.623801, 0), Vector(5.326529, -4.604182, 0), Vector(5.383156, -4.577933, 0), Vector(5.436951, -4.546082, 0), Vector(5.488124, -4.508732, 0), Vector(5.519141, -4.479697, 0), Vector(5.534818, -4.465021, 0)], [4, 1, 1, 1, 1, 1, 1, 1, 4], [0, 1.062174293, 2.087653736, 3.080296642, 4.058948008, 5.03139012, 6.005719887, 6.992016441, 8], False, 3, [1, 1, 1, 1, 1, 1, 1, 1, 1, 1, 1], False),
    Part.BSplineCurve([Vector(4.531977, -4.39968, 0), Vector(4.548984, -4.419582, 0), Vector(4.582501, -4.458806, 0), Vector(4.63979, -4.509598, 0), Vector(4.701336, -4.552773, 0), Vector(4.767117, -4.588122, 0), Vector(4.837428, -4.615616, 0), Vector(4.911924, -4.635016, 0), Vector(4.990903, -4.646462, 0), Vector(5.044926, -4.648054, 0), Vector(5.072561, -4.648868, 0)], [4, 1, 1, 1, 1, 1, 1, 1, 4], [0, 1.017460211, 2.005195831, 2.96880208, 3.936538458, 4.903086366, 5.898753713, 6.925103759, 8], False, 3, [1, 1, 1, 1, 1, 1, 1, 1, 1, 1, 1], False),
    Part.BSplineCurve([Vector(4.300646, -3.605443, 0), Vector(4.301292, -3.646597, 0), Vector(4.302552, -3.726758, 0), Vector(4.313892, -3.843464, 0), Vector(4.331179, -3.953491, 0), Vector(4.356954, -4.056428, 0), Vector(4.389243, -4.152868, 0), Vector(4.429135, -4.242208, 0), Vector(4.475454, -4.325383, 0), Vector(4.513246, -4.375058, 0), Vector(4.531977, -4.39968, 0)], [4, 1, 1, 1, 1, 1, 1, 1, 4], [0, 1.171098873, 2.281104103, 3.334483992, 4.338438261, 5.297974877, 6.225356982, 7.120398547, 8], False, 3, [1, 1, 1, 1, 1, 1, 1, 1, 1, 1, 1], False),
    Part.BSplineCurve([Vector(4.529947, -2.84205, 0), Vector(4.51157, -2.866315, 0), Vector(4.474546, -2.9152, 0), Vector(4.428066, -2.995811, 0), Vector(4.388533, -3.082414, 0), Vector(4.356177, -3.175087, 0), Vector(4.330957, -3.273933, 0), Vector(4.313326, -3.378999, 0), Vector(4.302737, -3.490235, 0), Vector(4.301353, -3.566458, 0), Vector(4.300646, -3.605443, 0)], [4, 1, 1, 1, 1, 1, 1, 1, 4], [0, 0.898140554, 1.809387162, 2.740718204, 3.705966939, 4.703925369, 5.74945803, 6.848943185, 8], False, 3, [1, 1, 1, 1, 1, 1, 1, 1, 1, 1, 1], False),
    Part.BSplineCurve([Vector(5.049834, -2.59692, 0), Vector(5.023673, -2.597508, 0), Vector(4.972425, -2.598661, 0), Vector(4.897645, -2.611058, 0), Vector(4.826485, -2.629893, 0), Vector(4.759073, -2.656941, 0), Vector(4.69533, -2.691513, 0), Vector(4.63593, -2.734337, 0), Vector(4.579485, -2.783816, 0), Vector(4.546667, -2.822396, 0), Vector(4.529947, -2.84205, 0)], [4, 1, 1, 1, 1, 1, 1, 1, 4], [0, 1.053414494, 2.063614103, 3.046293227, 4.01520277, 4.983805463, 5.961130836, 6.961320097, 8], False, 3, [1, 1, 1, 1, 1, 1, 1, 1, 1, 1, 1], False),
    Part.BSplineCurve([Vector(5.729217, -3.220297, 0), Vector(5.72278, -3.194097, 0), Vector(5.710236, -3.143044, 0), Vector(5.686506, -3.070076, 0), Vector(5.660394, -3.002372, 0), Vector(5.63052, -2.940312, 0), Vector(5.597908, -2.883352, 0), Vector(5.561684, -2.832051, 0), Vector(5.522527, -2.786148, 0), Vector(5.480216, -2.745749, 0), Vector(5.43482, -2.710989, 0), Vector(5.387612, -2.680014, 0), Vector(5.337374, -2.654621, 0), Vector(5.284809, -2.633181, 0), Vector(5.229505, -2.617244, 0), Vector(5.17188, -2.60525, 0), Vector(5.111688, -2.598387, 0), Vector(5.070684, -2.597415, 0), Vector(5.049834, -2.59692, 0)], [4, 1, 1, 1, 1, 1, 1, 1, 1, 1, 1, 1, 1, 1, 1, 1, 4], [0, 1.282586353, 2.499182829, 3.646034602, 4.730797578, 5.771318175, 6.763713287, 7.712684321, 8.6363956, 9.539720391, 10.428356747, 11.317388874, 12.212151588, 13.124116906, 14.050177375, 15.008543639, 16], False, 3, [1, 1, 1, 1, 1, 1, 1, 1, 1, 1, 1, 1, 1, 1, 1, 1, 1, 1, 1], False),
], False)
sketch5.addConstraint([
    Sketcher.Constraint("Block", 13),
    Sketcher.Constraint("Block", 14),
    Sketcher.Constraint("Block", 15),
    Sketcher.Constraint("Block", 16),
    Sketcher.Constraint("Block", 17),
    Sketcher.Constraint("Block", 18),
    Sketcher.Constraint("Block", 19),
    Sketcher.Constraint("Block", 21),
    Sketcher.Constraint("Block", 22),
    Sketcher.Constraint("Block", 23),
    Sketcher.Constraint("Block", 24),
    Sketcher.Constraint("Block", 25),
    Sketcher.Constraint("Block", 26),
    Sketcher.Constraint("Block", 28),
    Sketcher.Constraint("Block", 29),
    Sketcher.Constraint("Block", 30),
    Sketcher.Constraint("Block", 31),
    Sketcher.Constraint("Block", 33),
    Sketcher.Constraint("Block", 34),
    Sketcher.Constraint("Block", 35),
    Sketcher.Constraint("Block", 36),
    Sketcher.Constraint("Block", 37),
    Sketcher.Constraint("Block", 38),
    Sketcher.Constraint("Block", 39),
    Sketcher.Constraint("Coincident", 0, 2, 1, 1),
    Sketcher.Constraint("Coincident", 1, 2, 2, 1),
    Sketcher.Constraint("Coincident", 2, 2, 3, 1),
    Sketcher.Constraint("Coincident", 3, 2, 4, 1),
    Sketcher.Constraint("Coincident", 4, 2, 5, 1),
    Sketcher.Constraint("Coincident", 5, 2, 6, 1),
    Sketcher.Constraint("Coincident", 6, 2, 7, 1),
    Sketcher.Constraint("Coincident", 7, 2, 8, 1),
    Sketcher.Constraint("Coincident", 8, 2, 9, 1),
    Sketcher.Constraint("Coincident", 9, 2, 10, 1),
    Sketcher.Constraint("Coincident", 10, 2, 11, 1),
    Sketcher.Constraint("Coincident", 11, 2, 0, 1),
    Sketcher.Constraint("Coincident", 12, 2, 13, 2),
    Sketcher.Constraint("Coincident", 19, 1, 20, 1),
    Sketcher.Constraint("Coincident", 20, 2, 21, 2),
    Sketcher.Constraint("Coincident", 26, 1, 12, 1),
    Sketcher.Constraint("Coincident", 27, 2, 28, 2),
    Sketcher.Constraint("Coincident", 31, 1, 32, 1),
    Sketcher.Constraint("Coincident", 32, 2, 33, 2),
    Sketcher.Constraint("Coincident", 39, 1, 27, 1),
    Sketcher.Constraint("Vertical", 0),
    Sketcher.Constraint("Horizontal", 1),
    Sketcher.Constraint("Vertical", 2),
    Sketcher.Constraint("Horizontal", 3),
    Sketcher.Constraint("Vertical", 4),
    Sketcher.Constraint("Horizontal", 5),
    Sketcher.Constraint("Vertical", 6),
    Sketcher.Constraint("Horizontal", 7),
    Sketcher.Constraint("Vertical", 8),
    Sketcher.Constraint("Horizontal", 9),
    Sketcher.Constraint("Vertical", 10),
    Sketcher.Constraint("Horizontal", 11),
    Sketcher.Constraint("Vertical", 4, 2, 7, 2),
    Sketcher.Constraint("Equal", 2, 10),
    Sketcher.Constraint("DistanceY", 0, 1, 0, 2, 2.0),
    Sketcher.Constraint("DistanceX", 9, 1, 9, 2, 0.909091),
    Sketcher.Constraint("DistanceX", 11, 2, 11, 1, 1.220779),
    Sketcher.Constraint("DistanceY", 6, 2, 6, 1, 0.311688),
    Sketcher.Constraint("DistanceY", 6, 2, -1, 1, 3.817699),
    Sketcher.Constraint("DistanceX", 1, 1, 1, 2, 1.246753),
    Sketcher.Constraint("DistanceX", 5, 1, 5, 2, 0.857143),
    Sketcher.Constraint("DistanceY", 2, 2, 2, 1, 0.337662),
    Sketcher.Constraint("DistanceY", 4, 2, 4, 1, 0.545455),
    Sketcher.Constraint("DistanceX", -1, 1, 3, 2, 1.625321),
])
pocket4 = body.newObject("PartDesign::Pocket", "Pocket003")
pocket4.Profile = sketch5
pocket4.Length = 0.4
pocket4.Reversed = True

doc.recompute()
